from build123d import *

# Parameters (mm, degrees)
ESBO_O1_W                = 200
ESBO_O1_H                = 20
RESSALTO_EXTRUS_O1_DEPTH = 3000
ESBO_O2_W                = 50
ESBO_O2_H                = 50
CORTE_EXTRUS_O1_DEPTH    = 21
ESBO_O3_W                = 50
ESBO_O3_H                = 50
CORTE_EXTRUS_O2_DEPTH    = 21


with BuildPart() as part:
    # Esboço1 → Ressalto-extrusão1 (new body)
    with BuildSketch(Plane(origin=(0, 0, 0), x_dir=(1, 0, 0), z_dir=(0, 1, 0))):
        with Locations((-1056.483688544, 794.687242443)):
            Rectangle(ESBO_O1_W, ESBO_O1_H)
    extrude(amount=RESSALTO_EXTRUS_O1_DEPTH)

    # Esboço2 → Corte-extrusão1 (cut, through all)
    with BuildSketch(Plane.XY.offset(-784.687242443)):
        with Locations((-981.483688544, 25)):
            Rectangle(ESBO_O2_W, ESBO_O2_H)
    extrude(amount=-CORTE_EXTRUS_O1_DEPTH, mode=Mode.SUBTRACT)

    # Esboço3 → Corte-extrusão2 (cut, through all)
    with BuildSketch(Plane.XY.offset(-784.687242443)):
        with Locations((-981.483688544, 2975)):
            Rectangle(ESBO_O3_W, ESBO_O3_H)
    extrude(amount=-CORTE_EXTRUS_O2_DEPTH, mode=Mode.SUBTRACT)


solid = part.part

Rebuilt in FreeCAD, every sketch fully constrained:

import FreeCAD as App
import Part
import Sketcher
from FreeCAD import Vector
Q = App.Units.Quantity


def add_polygon(sketch, points):
    """Adds a closed chain of lines whose ends are joined by coincident constraints."""
    first, n = sketch.GeometryCount, len(points)
    for a, b in zip(points, points[1:] + points[:1]):
        sketch.addGeometry(Part.LineSegment(App.Vector(*a, 0), App.Vector(*b, 0)), False)
    for i in range(n):
        sketch.addConstraint(Sketcher.Constraint("Coincident", first + i, 2, first + (i + 1) % n, 1))

doc = App.newDocument("Part")
body = doc.addObject("PartDesign::Body", "Body")

# Sketch on XZ plane
sketch1 = doc.addObject("Sketcher::SketchObject", "Sketch")
body.addObject(sketch1)
sketch1.AttachmentSupport = (doc.XZ_Plane, [""])
sketch1.MapMode = "FlatFace"
add_polygon(sketch1, [(-1156.483689, -804.687242), (-1156.483689, -784.687242), (-956.483689, -784.687242), (-956.483689, -804.687242)])  # lines 0-3
sketch1.addConstraint([
    Sketcher.Constraint("Vertical", 0),
    Sketcher.Constraint("Horizontal", 1),
    Sketcher.Constraint("Vertical", 2),
    Sketcher.Constraint("Horizontal", 3),
    Sketcher.Constraint("DistanceX", 1, 1, 1, 2, Q("200 mm")),
    Sketcher.Constraint("DistanceY", 0, 1, 0, 2, Q("20 mm")),
    Sketcher.Constraint("DistanceX", 0, 2, -1, 1, Q("1156.483689 mm")),
    Sketcher.Constraint("DistanceY", 0, 2, -1, 1, Q("784.687242 mm")),
])
pad1 = doc.addObject("PartDesign::Pad", "Pad")
body.addObject(pad1)
pad1.Profile = sketch1
pad1.Length = 3000
pad1.Reversed = True

# Sketch on XY plane
sketch2 = doc.addObject("Sketcher::SketchObject", "Sketch001")
body.addObject(sketch2)
sketch2.AttachmentSupport = (doc.XY_Plane, [""])
sketch2.MapMode = "FlatFace"
sketch2.AttachmentOffset = App.Placement(Vector(0, 0, -784.687242), App.Rotation())
add_polygon(sketch2, [(-1006.483689, 50), (-1006.483689, 0), (-956.483689, 0), (-956.483689, 50)])  # lines 0-3
sketch2.addConstraint([
    Sketcher.Constraint("Vertical", 0),
    Sketcher.Constraint("Horizontal", 1),
    Sketcher.Constraint("Vertical", 2),
    Sketcher.Constraint("Horizontal", 3),
    Sketcher.Constraint("PointOnObject", 0, 2, -1),
    Sketcher.Constraint("Equal", 3, 0),
    Sketcher.Constraint("DistanceX", 1, 1, 1, 2, Q("50 mm")),
    Sketcher.Constraint("DistanceX", 0, 2, -1, 1, Q("1006.483689 mm")),
])
pocket1 = doc.addObject("PartDesign::Pocket", "Pocket")
body.addObject(pocket1)
pocket1.Profile = sketch2
pocket1.Type = "ThroughAll"

# Sketch on XY plane
sketch3 = doc.addObject("Sketcher::SketchObject", "Sketch002")
body.addObject(sketch3)
sketch3.AttachmentSupport = (doc.XY_Plane, [""])
sketch3.MapMode = "FlatFace"
sketch3.AttachmentOffset = App.Placement(Vector(0, 0, -784.687242), App.Rotation())
add_polygon(sketch3, [(-1006.483689, 3000), (-1006.483689, 2950), (-956.483689, 2950), (-956.483689, 3000)])  # lines 0-3
sketch3.addConstraint([
    Sketcher.Constraint("Vertical", 0),
    Sketcher.Constraint("Horizontal", 1),
    Sketcher.Constraint("Vertical", 2),
    Sketcher.Constraint("Horizontal", 3),
    Sketcher.Constraint("Equal", 3, 0),
    Sketcher.Constraint("DistanceX", 1, 1, 1, 2, Q("50 mm")),
    Sketcher.Constraint("DistanceY", -1, 1, 0, 2, Q("2950 mm")),
    Sketcher.Constraint("DistanceX", 0, 2, -1, 1, Q("1006.483689 mm")),
])
pocket2 = doc.addObject("PartDesign::Pocket", "Pocket001")
body.addObject(pocket2)
pocket2.Profile = sketch3
pocket2.Type = "ThroughAll"

doc.recompute()
